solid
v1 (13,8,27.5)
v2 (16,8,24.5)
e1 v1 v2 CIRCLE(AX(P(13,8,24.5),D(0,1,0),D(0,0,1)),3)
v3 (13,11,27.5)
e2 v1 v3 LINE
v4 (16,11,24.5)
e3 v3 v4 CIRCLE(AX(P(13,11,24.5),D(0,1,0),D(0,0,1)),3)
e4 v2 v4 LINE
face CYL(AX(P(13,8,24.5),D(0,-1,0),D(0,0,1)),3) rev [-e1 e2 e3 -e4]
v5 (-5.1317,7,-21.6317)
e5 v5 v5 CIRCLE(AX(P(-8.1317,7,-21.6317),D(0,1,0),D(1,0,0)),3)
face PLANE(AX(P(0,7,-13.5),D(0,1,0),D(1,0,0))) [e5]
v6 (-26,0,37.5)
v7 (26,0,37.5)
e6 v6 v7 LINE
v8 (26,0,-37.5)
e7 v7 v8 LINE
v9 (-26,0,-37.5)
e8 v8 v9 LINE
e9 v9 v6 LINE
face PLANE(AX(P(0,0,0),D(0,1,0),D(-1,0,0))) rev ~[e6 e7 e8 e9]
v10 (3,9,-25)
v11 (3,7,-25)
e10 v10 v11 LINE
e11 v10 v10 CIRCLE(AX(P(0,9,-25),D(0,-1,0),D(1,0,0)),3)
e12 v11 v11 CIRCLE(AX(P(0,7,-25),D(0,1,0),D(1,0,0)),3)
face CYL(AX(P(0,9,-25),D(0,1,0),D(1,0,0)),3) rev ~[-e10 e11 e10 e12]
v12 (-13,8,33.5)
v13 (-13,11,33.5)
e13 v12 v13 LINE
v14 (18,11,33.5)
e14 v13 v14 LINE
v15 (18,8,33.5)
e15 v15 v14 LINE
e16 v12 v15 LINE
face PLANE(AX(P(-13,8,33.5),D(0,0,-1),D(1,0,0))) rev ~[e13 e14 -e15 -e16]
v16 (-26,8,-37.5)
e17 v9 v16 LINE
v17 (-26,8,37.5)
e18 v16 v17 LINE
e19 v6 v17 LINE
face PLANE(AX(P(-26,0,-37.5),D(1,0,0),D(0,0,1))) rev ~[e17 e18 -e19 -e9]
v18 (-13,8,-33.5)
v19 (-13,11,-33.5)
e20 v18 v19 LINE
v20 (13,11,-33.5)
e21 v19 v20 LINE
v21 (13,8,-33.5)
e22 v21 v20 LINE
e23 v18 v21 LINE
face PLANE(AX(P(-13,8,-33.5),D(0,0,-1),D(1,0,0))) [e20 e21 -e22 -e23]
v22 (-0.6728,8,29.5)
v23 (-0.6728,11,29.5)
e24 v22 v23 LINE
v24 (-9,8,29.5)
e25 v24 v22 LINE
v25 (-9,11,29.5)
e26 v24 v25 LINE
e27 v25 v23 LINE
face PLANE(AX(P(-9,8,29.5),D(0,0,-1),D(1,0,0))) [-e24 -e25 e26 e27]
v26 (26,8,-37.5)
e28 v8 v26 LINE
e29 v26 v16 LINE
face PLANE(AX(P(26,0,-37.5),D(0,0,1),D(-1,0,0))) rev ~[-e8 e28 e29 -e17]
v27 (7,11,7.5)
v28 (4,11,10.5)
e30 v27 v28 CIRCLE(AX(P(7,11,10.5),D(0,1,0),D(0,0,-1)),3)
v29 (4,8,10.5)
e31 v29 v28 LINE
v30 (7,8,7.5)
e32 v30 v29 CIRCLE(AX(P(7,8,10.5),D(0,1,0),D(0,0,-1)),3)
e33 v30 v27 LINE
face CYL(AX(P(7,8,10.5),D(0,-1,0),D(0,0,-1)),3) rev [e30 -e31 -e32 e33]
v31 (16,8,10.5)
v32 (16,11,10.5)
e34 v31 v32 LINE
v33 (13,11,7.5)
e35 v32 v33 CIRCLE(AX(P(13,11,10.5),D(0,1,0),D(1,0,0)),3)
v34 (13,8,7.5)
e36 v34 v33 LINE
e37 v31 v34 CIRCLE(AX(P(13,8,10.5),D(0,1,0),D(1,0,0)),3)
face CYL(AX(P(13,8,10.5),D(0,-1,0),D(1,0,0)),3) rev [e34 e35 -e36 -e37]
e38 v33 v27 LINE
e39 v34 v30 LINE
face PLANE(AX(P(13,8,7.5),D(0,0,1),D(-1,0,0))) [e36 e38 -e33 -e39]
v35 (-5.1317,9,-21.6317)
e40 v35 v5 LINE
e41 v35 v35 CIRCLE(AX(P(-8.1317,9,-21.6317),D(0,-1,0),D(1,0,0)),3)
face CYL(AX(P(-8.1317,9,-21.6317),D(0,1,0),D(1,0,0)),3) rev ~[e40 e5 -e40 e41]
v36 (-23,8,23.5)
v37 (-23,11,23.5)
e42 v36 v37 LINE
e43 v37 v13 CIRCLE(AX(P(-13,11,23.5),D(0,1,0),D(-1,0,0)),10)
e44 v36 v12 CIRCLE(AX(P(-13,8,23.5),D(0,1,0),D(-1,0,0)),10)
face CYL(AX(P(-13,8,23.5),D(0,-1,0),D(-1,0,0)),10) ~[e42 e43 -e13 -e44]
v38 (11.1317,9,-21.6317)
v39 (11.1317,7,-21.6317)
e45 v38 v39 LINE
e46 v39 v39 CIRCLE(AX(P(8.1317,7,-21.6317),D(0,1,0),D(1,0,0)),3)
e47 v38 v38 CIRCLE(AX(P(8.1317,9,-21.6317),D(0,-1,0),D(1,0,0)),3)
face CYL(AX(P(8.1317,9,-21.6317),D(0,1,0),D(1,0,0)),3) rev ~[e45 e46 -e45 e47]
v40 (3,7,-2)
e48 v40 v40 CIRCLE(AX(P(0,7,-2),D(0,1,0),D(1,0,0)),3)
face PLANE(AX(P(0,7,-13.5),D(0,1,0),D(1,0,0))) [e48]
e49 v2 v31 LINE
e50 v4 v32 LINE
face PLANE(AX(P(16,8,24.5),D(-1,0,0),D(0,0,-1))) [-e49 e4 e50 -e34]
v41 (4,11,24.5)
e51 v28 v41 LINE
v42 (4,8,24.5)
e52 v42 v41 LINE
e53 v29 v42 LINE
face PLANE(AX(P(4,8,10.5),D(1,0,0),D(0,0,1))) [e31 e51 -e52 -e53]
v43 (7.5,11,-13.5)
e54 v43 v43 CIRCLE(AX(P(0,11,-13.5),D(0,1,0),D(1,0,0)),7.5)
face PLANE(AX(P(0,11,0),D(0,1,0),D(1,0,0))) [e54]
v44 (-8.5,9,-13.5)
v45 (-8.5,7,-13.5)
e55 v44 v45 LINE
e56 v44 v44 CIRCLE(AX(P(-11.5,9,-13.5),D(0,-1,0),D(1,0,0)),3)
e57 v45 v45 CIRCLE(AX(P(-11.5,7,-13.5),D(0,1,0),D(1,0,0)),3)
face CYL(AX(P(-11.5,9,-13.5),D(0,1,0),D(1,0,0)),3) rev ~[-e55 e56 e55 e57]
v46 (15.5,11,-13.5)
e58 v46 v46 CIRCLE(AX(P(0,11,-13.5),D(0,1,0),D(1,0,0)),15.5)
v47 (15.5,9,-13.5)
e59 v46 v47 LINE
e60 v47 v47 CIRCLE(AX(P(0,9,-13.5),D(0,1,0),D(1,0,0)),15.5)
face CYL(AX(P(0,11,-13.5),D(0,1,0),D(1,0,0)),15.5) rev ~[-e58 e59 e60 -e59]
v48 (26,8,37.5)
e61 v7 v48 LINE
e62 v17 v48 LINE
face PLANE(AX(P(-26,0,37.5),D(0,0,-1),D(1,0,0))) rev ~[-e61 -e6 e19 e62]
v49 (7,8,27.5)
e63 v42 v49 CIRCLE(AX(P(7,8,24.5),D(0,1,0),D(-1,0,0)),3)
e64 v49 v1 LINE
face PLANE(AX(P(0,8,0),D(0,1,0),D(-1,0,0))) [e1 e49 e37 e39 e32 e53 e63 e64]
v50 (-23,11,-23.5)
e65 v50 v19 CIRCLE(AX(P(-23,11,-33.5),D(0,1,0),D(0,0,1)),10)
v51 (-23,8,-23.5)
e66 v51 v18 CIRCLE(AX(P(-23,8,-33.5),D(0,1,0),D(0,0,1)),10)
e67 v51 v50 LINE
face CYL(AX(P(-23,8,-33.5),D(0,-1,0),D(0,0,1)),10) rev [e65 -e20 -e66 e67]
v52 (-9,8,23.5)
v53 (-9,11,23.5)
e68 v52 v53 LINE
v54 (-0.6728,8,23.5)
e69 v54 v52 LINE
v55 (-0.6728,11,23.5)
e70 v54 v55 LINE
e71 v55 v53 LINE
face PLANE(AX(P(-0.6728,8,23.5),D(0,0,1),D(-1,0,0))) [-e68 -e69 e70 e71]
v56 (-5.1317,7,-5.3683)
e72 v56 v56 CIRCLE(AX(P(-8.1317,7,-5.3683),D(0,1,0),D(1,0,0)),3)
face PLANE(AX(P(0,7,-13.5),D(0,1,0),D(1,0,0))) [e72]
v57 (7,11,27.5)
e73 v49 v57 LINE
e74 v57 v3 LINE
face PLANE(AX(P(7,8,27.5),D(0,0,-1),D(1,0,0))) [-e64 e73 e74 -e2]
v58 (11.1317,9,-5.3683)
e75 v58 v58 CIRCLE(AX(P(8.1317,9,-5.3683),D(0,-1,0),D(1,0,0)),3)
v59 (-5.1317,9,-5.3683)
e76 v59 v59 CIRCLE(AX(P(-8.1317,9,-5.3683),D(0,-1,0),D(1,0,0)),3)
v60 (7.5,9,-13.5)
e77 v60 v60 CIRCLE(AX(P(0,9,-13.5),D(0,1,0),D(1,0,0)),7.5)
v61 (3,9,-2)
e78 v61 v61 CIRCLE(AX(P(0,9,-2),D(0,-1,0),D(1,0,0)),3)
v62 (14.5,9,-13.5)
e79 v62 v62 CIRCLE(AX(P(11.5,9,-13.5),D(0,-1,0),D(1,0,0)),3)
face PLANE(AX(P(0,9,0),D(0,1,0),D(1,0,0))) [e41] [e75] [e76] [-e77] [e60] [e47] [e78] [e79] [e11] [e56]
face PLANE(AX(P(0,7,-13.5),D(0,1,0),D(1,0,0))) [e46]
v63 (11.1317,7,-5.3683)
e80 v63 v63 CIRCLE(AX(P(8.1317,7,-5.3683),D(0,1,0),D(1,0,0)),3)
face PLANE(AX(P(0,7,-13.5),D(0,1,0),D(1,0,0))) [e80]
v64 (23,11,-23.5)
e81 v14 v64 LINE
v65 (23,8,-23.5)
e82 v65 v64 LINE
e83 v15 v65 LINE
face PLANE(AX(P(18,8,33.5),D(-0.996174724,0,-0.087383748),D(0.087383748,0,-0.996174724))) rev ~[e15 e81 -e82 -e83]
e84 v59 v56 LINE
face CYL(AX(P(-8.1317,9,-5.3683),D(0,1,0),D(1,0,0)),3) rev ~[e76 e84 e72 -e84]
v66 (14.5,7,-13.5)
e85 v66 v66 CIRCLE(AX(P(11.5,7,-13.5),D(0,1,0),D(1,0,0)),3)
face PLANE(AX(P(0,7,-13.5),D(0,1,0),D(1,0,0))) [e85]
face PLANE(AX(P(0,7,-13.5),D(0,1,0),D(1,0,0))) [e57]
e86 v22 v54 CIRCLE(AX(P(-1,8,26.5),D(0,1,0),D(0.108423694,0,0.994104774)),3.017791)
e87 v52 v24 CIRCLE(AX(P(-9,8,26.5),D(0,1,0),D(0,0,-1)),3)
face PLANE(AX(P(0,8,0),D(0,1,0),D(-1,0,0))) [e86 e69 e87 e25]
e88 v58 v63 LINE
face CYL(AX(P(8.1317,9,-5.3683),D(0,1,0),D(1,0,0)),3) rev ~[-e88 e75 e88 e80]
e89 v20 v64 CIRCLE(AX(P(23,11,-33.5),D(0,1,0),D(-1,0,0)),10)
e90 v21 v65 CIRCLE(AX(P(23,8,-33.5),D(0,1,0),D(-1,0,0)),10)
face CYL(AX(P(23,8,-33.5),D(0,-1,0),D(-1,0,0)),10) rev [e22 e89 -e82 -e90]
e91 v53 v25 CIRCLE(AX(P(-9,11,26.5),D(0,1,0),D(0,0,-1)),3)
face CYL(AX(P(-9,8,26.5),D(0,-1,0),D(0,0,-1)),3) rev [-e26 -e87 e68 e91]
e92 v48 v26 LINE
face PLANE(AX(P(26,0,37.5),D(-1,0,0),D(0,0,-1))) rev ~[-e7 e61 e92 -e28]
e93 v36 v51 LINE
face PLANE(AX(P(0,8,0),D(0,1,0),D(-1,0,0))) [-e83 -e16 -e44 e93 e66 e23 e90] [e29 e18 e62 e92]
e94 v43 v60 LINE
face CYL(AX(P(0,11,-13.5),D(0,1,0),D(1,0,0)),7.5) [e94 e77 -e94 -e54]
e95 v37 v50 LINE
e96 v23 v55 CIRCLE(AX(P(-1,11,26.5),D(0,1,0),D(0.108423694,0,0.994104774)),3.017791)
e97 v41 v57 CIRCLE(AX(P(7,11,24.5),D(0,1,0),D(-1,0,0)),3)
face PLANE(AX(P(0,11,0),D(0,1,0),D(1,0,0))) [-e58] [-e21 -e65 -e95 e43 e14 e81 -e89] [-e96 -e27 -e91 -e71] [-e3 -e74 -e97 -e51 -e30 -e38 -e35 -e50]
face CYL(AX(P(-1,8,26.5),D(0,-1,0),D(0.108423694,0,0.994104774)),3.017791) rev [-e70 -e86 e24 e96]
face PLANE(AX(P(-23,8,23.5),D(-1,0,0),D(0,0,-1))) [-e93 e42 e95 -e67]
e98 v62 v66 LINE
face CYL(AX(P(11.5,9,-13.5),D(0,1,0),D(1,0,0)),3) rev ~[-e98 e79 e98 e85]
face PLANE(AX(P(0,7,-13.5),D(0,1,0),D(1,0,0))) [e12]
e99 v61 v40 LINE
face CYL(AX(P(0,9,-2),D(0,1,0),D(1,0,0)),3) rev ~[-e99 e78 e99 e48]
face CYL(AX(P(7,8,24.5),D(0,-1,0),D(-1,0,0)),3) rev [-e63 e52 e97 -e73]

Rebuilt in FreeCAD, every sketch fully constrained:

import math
import FreeCAD as App
import Part
import Sketcher
Q = App.Units.Quantity

doc = App.newDocument("Part")
body = doc.addObject("PartDesign::Body", "Body")

# Sketch on XZ plane
sketch1 = body.newObject("Sketcher::SketchObject", "Sketch")
sketch1.AttachmentSupport = (doc.getObject("XZ_Plane"), [""])
sketch1.MapMode = "FlatFace"
sketch1.addGeometry([
    Part.LineSegment(App.Vector(-26, -38, 0), App.Vector(-26, 38, 0)),
    Part.LineSegment(App.Vector(-26, 38, 0), App.Vector(26, 38, 0)),
    Part.LineSegment(App.Vector(26, 38, 0), App.Vector(26, -38, 0)),
    Part.LineSegment(App.Vector(26, -38, 0), App.Vector(-26, -38, 0)),
], False)
sketch1.addConstraint([
    Sketcher.Constraint("Coincident", 0, 2, 1, 1),
    Sketcher.Constraint("Coincident", 1, 2, 2, 1),
    Sketcher.Constraint("Coincident", 2, 2, 3, 1),
    Sketcher.Constraint("Coincident", 3, 2, 0, 1),
    Sketcher.Constraint("Vertical", 0),
    Sketcher.Constraint("Horizontal", 1),
    Sketcher.Constraint("Vertical", 2),
    Sketcher.Constraint("Horizontal", 3),
    Sketcher.Constraint("Symmetric", 0, 2, 2, 2, -1, 1),
    Sketcher.Constraint("DistanceX", 1, 1, 1, 2, Q("52 mm")),
    Sketcher.Constraint("DistanceY", 0, 1, 0, 2, Q("75 mm")),
])
pad1 = body.newObject("PartDesign::Pad", "Pad")
pad1.Profile = sketch1
pad1.Length = 8
pad1.Reversed = True

# Sketch on XZ plane
sketch2 = body.newObject("Sketcher::SketchObject", "Sketch001")
sketch2.AttachmentSupport = (doc.getObject("XZ_Plane"), [""])
sketch2.MapMode = "FlatFace"
sketch2.AttachmentOffset = App.Placement(App.Vector(0, 0, -8), App.Rotation())
sketch2.addGeometry([
    Part.ArcOfCircle(Part.Circle(App.Vector(-23, -33.5, 0), App.Vector(0, 0, 1), 10), math.radians(0), math.radians(90)),  # 0
    Part.LineSegment(App.Vector(-23, -23.5, 0), App.Vector(-23, 23.5, 0)),  # 1
    Part.ArcOfCircle(Part.Circle(App.Vector(-13, 23.5, 0), App.Vector(0, 0, 1), 10), math.radians(90), math.radians(180)),  # 2
    Part.LineSegment(App.Vector(-13, 33.5, 0), App.Vector(18, 33.5, 0)),  # 3
    Part.LineSegment(App.Vector(18, 33.5, 0), App.Vector(23, -23.5, 0)),  # 4
    Part.ArcOfCircle(Part.Circle(App.Vector(23, -33.5, 0), App.Vector(0, 0, 1), 10), math.radians(90), math.radians(180)),  # 5
    Part.LineSegment(App.Vector(13, -33.5, 0), App.Vector(-13, -33.5, 0)),  # 6
    Part.LineSegment(App.Vector(-0.7, 29.5, 0), App.Vector(-9, 29.5, 0)),  # 7
    Part.ArcOfCircle(Part.Circle(App.Vector(-9, 26.5, 0), App.Vector(0, 0, 1), 3), math.radians(90), math.radians(270)),  # 8
    Part.LineSegment(App.Vector(-9, 23.5, 0), App.Vector(-0.7, 23.5, 0)),  # 9
    Part.ArcOfCircle(Part.Circle(App.Vector(-1, 26.5, 0), App.Vector(0, 0, 1), 3), math.radians(-84), math.radians(84)),  # 10
    Part.LineSegment(App.Vector(13, 27.5, 0), App.Vector(7, 27.5, 0)),  # 11
    Part.ArcOfCircle(Part.Circle(App.Vector(7, 24.5, 0), App.Vector(0, 0, 1), 3), math.radians(90), math.radians(180)),  # 12
    Part.LineSegment(App.Vector(4, 24.5, 0), App.Vector(4, 10.5, 0)),  # 13
    Part.ArcOfCircle(Part.Circle(App.Vector(7, 10.5, 0), App.Vector(0, 0, 1), 3), math.radians(180), math.radians(270)),  # 14
    Part.LineSegment(App.Vector(7, 7.5, 0), App.Vector(13, 7.5, 0)),  # 15
    Part.ArcOfCircle(Part.Circle(App.Vector(13, 10.5, 0), App.Vector(0, 0, 1), 3), math.radians(-90), math.radians(0)),  # 16
    Part.LineSegment(App.Vector(16, 10.5, 0), App.Vector(16, 24.5, 0)),  # 17
    Part.ArcOfCircle(Part.Circle(App.Vector(13, 24.5, 0), App.Vector(0, 0, 1), 3), math.radians(0), math.radians(90)),  # 18
], False)
sketch2.addConstraint([
    Sketcher.Constraint("Coincident", 0, 2, 1, 1),
    Sketcher.Constraint("Tangent", 1, 2, 2, 2),
    Sketcher.Constraint("Tangent", 2, 1, 3, 1),
    Sketcher.Constraint("Coincident", 3, 2, 4, 1),
    Sketcher.Constraint("Coincident", 4, 2, 5, 1),
    Sketcher.Constraint("Coincident", 5, 2, 6, 1),
    Sketcher.Constraint("Coincident", 6, 2, 0, 1),
    Sketcher.Constraint("Tangent", 7, 2, 8, 1),
    Sketcher.Constraint("Tangent", 8, 2, 9, 1),
    Sketcher.Constraint("Coincident", 9, 2, 10, 1),
    Sketcher.Constraint("Coincident", 10, 2, 7, 1),
    Sketcher.Constraint("Tangent", 11, 2, 12, 1),
    Sketcher.Constraint("Tangent", 12, 2, 13, 1),
    Sketcher.Constraint("Tangent", 13, 2, 14, 1),
    Sketcher.Constraint("Tangent", 14, 2, 15, 1),
    Sketcher.Constraint("Tangent", 15, 2, 16, 1),
    Sketcher.Constraint("Tangent", 16, 2, 17, 1),
    Sketcher.Constraint("Tangent", 17, 2, 18, 1),
    Sketcher.Constraint("Tangent", 18, 2, 11, 1),
    Sketcher.Constraint("Vertical", 1),
    Sketcher.Constraint("Horizontal", 3),
    Sketcher.Constraint("Horizontal", 6),
    Sketcher.Constraint("Horizontal", 7),
    Sketcher.Constraint("Horizontal", 9),
    Sketcher.Constraint("Horizontal", 11),
    Sketcher.Constraint("Vertical", 13),
    Sketcher.Constraint("Horizontal", 15),
    Sketcher.Constraint("Vertical", 17),
    Sketcher.Constraint("Equal", 0, 2),
    Sketcher.Constraint("Equal", 2, 5),
    Sketcher.Constraint("Equal", 8, 12),
    Sketcher.Constraint("Equal", 12, 14),
    Sketcher.Constraint("Equal", 14, 16),
    Sketcher.Constraint("Equal", 16, 18),
    Sketcher.Constraint("Symmetric", 1, 2, 4, 2, -1, 1),
    Sketcher.Constraint("Symmetric", 2, 1, 5, 2, -1, 1),
    Sketcher.Constraint("Symmetric", 0, 3, 5, 3, -2),
    Sketcher.Constraint("Horizontal", 8, 3, 10, 3),
    Sketcher.Constraint("Horizontal", 1, 2, 8, 2),
    Sketcher.Constraint("Vertical", 18, 3, 5, 2),
    Sketcher.Constraint("Radius", 0, Q("10 mm")),
    Sketcher.Constraint("Radius", 8, Q("3 mm")),
    Sketcher.Constraint("DistanceX", 11, 2, 11, 1, Q("6 mm")),
    Sketcher.Constraint("DistanceX", -1, 1, 12, 2, Q("4 mm")),
    Sketcher.Constraint("DistanceX", 2, 3, 8, 3, Q("4 mm")),
    Sketcher.Constraint("DistanceX", 8, 3, 10, 3, Q("8 mm")),
    Sketcher.Constraint("DistanceY", 14, 3, 10, 3, Q("16 mm")),
    Sketcher.Constraint("DistanceX", 12, 3, 3, 2, Q("11 mm")),
    Sketcher.Constraint("DistanceY", 9, 2, 11, 2, Q("4 mm")),
    Sketcher.Constraint("DistanceY", 1, 1, 1, 2, Q("47 mm")),
    Sketcher.Constraint("Radius", 10, Q("3.0178 mm")),
])
pad2 = body.newObject("PartDesign::Pad", "Pad001")
pad2.Profile = sketch2
pad2.Length = 3
pad2.Reversed = True

# Sketch on XZ plane
sketch3 = body.newObject("Sketcher::SketchObject", "Sketch002")
sketch3.AttachmentSupport = (doc.getObject("XZ_Plane"), [""])
sketch3.MapMode = "FlatFace"
sketch3.AttachmentOffset = App.Placement(App.Vector(0, 0, -11), App.Rotation())
sketch3.addGeometry([
    Part.Circle(App.Vector(0, -14, 0), App.Vector(0, 0, 1), 16),
    Part.Circle(App.Vector(0, -14, 0), App.Vector(0, 0, 1), 8),
], False)
sketch3.addConstraint([
    Sketcher.Constraint("Coincident", 1, 3, 0, 3),
    Sketcher.Constraint("PointOnObject", 0, 3, -2),
    Sketcher.Constraint("Diameter", 0, Q("31 mm")),
    Sketcher.Constraint("Diameter", 1, Q("15 mm")),
    Sketcher.Constraint("DistanceY", 0, 3, -1, 1, Q("13.5 mm")),
])
pocket1 = body.newObject("PartDesign::Pocket", "Pocket")
pocket1.Profile = sketch3
pocket1.Length = 2
pocket1.Reversed = True

# Sketch on XZ plane
sketch4 = body.newObject("Sketcher::SketchObject", "Sketch003")
sketch4.AttachmentSupport = (doc.getObject("XZ_Plane"), [""])
sketch4.MapMode = "FlatFace"
sketch4.AttachmentOffset = App.Placement(App.Vector(0, 0, -9), App.Rotation())
sketch4.addGeometry([
    Part.Circle(App.Vector(11.5, -13.5, 0), App.Vector(0, 0, 1), 3),  # 0
    Part.Circle(App.Vector(8.1, -21.6, 0), App.Vector(0, 0, 1), 3),  # 1
    Part.Circle(App.Vector(8.1, -5.4, 0), App.Vector(0, 0, 1), 3),  # 2
    Part.Circle(App.Vector(0, -25, 0), App.Vector(0, 0, 1), 3),  # 3
    Part.Circle(App.Vector(0, -2, 0), App.Vector(0, 0, 1), 3),  # 4
    Part.Circle(App.Vector(-8.1, -21.6, 0), App.Vector(0, 0, 1), 3),  # 5
    Part.Circle(App.Vector(-8.1, -5.4, 0), App.Vector(0, 0, 1), 3),  # 6
    Part.Circle(App.Vector(-11.5, -13.5, 0), App.Vector(0, 0, 1), 3),  # 7
], False)
sketch4.addConstraint([
    Sketcher.Constraint("Equal", 0, 1),
    Sketcher.Constraint("Equal", 1, 2),
    Sketcher.Constraint("Equal", 2, 3),
    Sketcher.Constraint("Equal", 3, 4),
    Sketcher.Constraint("Equal", 4, 5),
    Sketcher.Constraint("Equal", 5, 6),
    Sketcher.Constraint("Equal", 6, 7),
    Sketcher.Constraint("Symmetric", 1, 3, 5, 3, -2),
    Sketcher.Constraint("Symmetric", 2, 3, 6, 3, -2),
    Sketcher.Constraint("Symmetric", 0, 3, 7, 3, -2),
    Sketcher.Constraint("PointOnObject", 3, 3, -2),
    Sketcher.Constraint("PointOnObject", 4, 3, -2),
    Sketcher.Constraint("Vertical", 1, 3, 2, 3),
    Sketcher.Constraint("Diameter", 0, Q("6 mm")),
    Sketcher.Constraint("DistanceY", 3, 3, 4, 3, Q("23 mm")),
    Sketcher.Constraint("DistanceY", 3, 3, -1, 1, Q("25 mm")),
    Sketcher.Constraint("DistanceX", -1, 1, 0, 3, Q("11.5 mm")),
    Sketcher.Constraint("DistanceY", 0, 3, -1, 1, Q("13.5 mm")),
    Sketcher.Constraint("DistanceX", -1, 1, 1, 3, Q("8.1317 mm")),
    Sketcher.Constraint("DistanceY", 1, 3, -1, 1, Q("21.6317 mm")),
    Sketcher.Constraint("DistanceY", 2, 3, -1, 1, Q("5.3683 mm")),
])
pocket2 = body.newObject("PartDesign::Pocket", "Pocket001")
pocket2.Profile = sketch4
pocket2.Length = 2
pocket2.Reversed = True

doc.recompute()
